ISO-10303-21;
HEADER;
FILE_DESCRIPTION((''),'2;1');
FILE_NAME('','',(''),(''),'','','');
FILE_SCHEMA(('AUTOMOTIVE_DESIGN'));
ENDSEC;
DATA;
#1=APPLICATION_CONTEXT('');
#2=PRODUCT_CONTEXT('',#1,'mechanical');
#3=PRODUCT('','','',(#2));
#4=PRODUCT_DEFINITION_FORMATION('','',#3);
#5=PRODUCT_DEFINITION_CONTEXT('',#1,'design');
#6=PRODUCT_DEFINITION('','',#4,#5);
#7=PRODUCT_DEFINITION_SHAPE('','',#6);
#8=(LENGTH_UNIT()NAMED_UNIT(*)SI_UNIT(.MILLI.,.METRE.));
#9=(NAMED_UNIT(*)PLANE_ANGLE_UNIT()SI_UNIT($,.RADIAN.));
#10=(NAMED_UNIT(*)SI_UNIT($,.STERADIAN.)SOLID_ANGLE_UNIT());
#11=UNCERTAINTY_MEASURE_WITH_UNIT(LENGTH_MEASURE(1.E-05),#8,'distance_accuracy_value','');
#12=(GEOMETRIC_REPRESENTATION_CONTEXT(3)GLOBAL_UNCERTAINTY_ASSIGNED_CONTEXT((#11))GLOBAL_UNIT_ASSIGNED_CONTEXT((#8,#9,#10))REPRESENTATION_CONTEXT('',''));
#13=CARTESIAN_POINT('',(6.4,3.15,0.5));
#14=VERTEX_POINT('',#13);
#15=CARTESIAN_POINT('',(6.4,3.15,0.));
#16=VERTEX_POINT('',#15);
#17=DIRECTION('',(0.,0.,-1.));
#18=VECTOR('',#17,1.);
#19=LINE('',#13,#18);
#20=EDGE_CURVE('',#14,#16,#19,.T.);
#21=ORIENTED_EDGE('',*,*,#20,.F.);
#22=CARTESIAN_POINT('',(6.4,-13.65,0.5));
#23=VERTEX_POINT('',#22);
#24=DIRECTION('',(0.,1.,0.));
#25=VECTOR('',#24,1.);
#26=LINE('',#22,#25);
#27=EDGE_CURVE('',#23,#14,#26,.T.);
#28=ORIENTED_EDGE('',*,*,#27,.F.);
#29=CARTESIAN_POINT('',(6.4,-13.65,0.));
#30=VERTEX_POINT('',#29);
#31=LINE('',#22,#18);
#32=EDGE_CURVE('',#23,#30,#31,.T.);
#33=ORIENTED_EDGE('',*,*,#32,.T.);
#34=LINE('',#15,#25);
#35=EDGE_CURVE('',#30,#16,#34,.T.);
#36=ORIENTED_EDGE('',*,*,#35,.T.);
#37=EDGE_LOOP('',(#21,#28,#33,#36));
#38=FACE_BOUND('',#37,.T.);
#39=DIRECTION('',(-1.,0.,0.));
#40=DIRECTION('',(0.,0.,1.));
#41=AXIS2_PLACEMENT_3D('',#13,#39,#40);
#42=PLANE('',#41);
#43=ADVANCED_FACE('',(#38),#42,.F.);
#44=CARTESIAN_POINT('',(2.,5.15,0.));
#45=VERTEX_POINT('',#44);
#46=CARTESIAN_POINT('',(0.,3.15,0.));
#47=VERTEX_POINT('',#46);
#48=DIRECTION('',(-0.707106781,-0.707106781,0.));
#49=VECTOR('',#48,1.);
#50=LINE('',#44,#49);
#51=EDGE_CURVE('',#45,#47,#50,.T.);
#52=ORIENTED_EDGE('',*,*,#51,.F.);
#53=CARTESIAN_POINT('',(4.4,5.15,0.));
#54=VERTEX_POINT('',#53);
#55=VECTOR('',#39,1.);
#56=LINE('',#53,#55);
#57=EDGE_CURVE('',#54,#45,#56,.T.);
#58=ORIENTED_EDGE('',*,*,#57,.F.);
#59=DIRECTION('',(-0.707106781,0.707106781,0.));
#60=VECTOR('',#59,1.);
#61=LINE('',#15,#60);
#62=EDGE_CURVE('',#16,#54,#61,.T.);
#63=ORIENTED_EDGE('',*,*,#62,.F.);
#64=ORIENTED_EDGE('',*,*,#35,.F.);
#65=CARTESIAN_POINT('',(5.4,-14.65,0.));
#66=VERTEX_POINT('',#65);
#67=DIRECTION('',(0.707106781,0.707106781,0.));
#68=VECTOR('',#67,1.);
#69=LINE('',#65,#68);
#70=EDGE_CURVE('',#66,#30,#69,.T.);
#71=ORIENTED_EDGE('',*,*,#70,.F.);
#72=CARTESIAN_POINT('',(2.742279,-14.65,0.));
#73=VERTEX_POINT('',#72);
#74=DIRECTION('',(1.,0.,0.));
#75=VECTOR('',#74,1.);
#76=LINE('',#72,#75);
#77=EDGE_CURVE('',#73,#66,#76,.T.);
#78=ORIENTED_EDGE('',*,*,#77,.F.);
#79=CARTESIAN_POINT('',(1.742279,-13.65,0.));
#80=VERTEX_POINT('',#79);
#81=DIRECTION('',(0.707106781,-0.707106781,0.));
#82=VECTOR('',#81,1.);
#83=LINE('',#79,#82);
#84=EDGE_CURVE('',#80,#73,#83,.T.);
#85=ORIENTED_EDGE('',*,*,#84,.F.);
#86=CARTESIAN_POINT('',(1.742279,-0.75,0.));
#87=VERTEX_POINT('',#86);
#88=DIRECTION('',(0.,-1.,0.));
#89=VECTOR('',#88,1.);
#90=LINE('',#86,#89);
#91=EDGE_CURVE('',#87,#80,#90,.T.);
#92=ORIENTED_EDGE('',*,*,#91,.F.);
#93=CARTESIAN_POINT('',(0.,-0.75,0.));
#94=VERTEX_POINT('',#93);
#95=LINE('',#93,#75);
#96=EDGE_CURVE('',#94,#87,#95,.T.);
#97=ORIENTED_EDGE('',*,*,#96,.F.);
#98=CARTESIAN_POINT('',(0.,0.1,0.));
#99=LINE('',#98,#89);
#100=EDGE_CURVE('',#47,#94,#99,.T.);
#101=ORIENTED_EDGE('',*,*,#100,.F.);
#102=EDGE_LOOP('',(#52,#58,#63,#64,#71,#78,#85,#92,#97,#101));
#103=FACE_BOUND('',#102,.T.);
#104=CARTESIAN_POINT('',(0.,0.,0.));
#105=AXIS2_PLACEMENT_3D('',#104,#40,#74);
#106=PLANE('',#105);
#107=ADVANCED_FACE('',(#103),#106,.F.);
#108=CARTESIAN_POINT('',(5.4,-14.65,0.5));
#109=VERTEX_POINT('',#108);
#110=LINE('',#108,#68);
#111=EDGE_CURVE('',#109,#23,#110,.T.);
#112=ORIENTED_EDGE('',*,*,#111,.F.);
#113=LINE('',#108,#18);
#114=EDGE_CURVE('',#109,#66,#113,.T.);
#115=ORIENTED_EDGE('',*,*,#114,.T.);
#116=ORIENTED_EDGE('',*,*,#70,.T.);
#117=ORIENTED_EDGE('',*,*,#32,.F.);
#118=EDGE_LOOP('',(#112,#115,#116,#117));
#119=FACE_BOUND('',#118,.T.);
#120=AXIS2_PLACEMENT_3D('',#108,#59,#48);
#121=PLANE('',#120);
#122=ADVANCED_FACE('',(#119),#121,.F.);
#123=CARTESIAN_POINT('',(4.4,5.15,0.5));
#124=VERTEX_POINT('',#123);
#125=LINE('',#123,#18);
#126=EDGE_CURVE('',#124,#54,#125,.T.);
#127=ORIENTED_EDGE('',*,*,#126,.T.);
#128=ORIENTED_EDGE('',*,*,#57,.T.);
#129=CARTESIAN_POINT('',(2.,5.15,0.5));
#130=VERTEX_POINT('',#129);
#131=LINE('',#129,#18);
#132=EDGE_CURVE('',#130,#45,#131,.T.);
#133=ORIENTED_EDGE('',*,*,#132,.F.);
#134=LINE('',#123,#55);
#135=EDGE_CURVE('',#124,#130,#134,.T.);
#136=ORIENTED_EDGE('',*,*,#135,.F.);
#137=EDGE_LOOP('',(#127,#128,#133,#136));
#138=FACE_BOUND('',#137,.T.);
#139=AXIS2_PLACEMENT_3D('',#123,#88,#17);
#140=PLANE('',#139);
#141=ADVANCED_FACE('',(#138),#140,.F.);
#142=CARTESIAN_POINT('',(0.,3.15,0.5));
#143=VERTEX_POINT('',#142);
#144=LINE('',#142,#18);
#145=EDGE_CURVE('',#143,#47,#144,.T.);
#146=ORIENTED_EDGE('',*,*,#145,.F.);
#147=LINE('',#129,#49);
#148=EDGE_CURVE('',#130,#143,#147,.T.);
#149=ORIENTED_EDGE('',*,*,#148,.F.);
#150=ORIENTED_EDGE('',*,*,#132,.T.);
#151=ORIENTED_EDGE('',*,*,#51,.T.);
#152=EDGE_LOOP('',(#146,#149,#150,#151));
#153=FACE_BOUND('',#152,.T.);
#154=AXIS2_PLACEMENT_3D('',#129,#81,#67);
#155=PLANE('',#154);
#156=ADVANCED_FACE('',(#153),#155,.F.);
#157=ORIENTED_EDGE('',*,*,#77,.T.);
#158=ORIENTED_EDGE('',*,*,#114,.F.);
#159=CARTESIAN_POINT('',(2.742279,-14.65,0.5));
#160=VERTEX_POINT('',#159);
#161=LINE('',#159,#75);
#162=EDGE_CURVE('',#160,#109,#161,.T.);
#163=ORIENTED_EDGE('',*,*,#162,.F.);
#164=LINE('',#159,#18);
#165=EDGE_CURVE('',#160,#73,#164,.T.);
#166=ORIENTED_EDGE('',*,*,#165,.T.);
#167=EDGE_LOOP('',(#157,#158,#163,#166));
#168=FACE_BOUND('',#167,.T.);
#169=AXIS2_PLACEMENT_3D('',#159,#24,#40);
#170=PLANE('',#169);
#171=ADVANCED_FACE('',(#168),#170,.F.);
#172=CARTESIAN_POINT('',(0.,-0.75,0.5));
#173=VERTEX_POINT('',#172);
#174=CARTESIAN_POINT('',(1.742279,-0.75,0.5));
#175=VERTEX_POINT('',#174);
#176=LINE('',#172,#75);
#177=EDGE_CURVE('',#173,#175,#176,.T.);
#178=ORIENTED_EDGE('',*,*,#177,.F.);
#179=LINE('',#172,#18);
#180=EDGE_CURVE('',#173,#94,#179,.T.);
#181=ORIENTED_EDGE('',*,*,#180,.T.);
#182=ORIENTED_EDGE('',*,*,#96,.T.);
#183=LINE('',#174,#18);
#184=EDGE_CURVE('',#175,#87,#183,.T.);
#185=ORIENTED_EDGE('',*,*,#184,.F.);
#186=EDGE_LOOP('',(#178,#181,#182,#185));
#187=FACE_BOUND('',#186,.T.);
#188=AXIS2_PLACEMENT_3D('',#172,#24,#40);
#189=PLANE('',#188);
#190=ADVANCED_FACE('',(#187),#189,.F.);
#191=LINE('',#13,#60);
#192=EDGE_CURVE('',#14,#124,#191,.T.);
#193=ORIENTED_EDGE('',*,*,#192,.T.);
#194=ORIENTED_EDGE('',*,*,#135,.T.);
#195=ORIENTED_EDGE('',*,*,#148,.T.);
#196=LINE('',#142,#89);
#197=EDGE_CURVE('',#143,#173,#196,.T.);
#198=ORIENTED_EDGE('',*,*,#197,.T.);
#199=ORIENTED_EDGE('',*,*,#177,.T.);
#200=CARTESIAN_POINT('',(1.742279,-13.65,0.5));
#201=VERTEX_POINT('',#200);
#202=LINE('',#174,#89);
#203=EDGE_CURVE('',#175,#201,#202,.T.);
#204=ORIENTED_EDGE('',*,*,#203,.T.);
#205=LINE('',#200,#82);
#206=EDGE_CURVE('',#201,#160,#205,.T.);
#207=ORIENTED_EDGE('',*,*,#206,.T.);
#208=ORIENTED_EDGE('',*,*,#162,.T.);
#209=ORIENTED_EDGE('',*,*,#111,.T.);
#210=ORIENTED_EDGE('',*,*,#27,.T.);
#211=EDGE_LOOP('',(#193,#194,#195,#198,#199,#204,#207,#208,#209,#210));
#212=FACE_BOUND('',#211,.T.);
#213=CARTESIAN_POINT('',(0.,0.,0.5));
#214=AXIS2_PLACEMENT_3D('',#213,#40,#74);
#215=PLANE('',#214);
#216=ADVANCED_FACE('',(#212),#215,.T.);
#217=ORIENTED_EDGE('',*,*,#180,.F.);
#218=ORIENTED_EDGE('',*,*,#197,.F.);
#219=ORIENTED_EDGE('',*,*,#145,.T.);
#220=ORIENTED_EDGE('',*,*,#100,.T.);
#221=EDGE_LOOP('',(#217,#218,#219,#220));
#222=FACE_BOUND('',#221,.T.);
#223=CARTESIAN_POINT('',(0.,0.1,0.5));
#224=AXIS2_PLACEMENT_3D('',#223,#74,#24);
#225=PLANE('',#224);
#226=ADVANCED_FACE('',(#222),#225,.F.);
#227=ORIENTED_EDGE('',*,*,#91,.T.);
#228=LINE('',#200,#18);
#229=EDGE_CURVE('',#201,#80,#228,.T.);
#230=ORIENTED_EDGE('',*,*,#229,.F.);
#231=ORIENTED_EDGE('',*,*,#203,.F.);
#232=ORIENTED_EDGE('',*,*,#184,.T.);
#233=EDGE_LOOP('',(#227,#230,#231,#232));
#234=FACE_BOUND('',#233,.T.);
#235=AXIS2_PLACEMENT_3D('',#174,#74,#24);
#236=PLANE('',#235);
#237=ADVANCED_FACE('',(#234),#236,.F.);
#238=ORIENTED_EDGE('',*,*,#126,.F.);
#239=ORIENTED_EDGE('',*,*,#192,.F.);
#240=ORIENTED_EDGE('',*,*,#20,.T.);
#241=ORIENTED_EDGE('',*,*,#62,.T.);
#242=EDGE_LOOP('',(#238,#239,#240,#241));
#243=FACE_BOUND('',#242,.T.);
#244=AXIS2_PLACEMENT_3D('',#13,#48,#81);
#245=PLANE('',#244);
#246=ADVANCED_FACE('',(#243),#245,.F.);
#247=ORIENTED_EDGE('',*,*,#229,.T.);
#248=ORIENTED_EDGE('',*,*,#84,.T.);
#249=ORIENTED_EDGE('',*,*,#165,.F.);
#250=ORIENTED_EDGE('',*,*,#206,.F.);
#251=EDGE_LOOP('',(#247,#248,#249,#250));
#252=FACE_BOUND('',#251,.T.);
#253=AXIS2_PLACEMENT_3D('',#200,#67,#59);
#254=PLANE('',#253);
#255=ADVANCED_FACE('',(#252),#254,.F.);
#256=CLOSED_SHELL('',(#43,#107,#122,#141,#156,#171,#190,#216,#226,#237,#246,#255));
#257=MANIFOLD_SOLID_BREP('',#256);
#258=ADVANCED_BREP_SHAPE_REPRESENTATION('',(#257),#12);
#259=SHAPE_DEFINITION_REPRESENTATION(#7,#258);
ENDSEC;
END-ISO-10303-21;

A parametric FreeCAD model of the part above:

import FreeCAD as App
import Part
import Sketcher
from FreeCAD import Vector
Q = App.Units.Quantity


def add_polygon(sketch, points):
    """Adds a closed chain of lines whose ends are joined by coincident constraints."""
    first, n = sketch.GeometryCount, len(points)
    for a, b in zip(points, points[1:] + points[:1]):
        sketch.addGeometry(Part.LineSegment(App.Vector(*a, 0), App.Vector(*b, 0)), False)
    for i in range(n):
        sketch.addConstraint(Sketcher.Constraint("Coincident", first + i, 2, first + (i + 1) % n, 1))

doc = App.newDocument("Part")
body = doc.addObject("PartDesign::Body", "Body")

# Sketch on XY plane
sketch1 = doc.addObject("Sketcher::SketchObject", "Sketch")
body.addObject(sketch1)
sketch1.AttachmentSupport = (doc.XY_Plane, [""])
sketch1.MapMode = "FlatFace"
add_polygon(sketch1, [(1.742279, -13.65), (2.742279, -14.65), (5.4, -14.65), (6.4, -13.65), (6.4, 3.15), (4.4, 5.15), (2, 5.15), (0, 3.15), (0, -0.75), (1.742279, -0.75)])  # lines 0-9
sketch1.addConstraint(Sketcher.Constraint("Horizontal", 1))
sketch1.addConstraint(Sketcher.Constraint("Vertical", 3))
sketch1.addConstraint(Sketcher.Constraint("Horizontal", 5))
sketch1.addConstraint(Sketcher.Constraint("Vertical", 7))
sketch1.addConstraint(Sketcher.Constraint("Horizontal", 8))
sketch1.addConstraint(Sketcher.Constraint("Vertical", 9))
sketch1.addConstraint(Sketcher.Constraint("PointOnObject", 6, 2, -2))
sketch1.addConstraint(Sketcher.Constraint("Perpendicular", 0, 2))
sketch1.addConstraint(Sketcher.Constraint("Perpendicular", 2, 4))
sketch1.addConstraint(Sketcher.Constraint("Perpendicular", 4, 6))
sketch1.addConstraint(Sketcher.Constraint("Horizontal", 3, 2, 6, 2))
sketch1.addConstraint(Sketcher.Constraint("Horizontal", 2, 2, 9, 2))
sketch1.addConstraint(Sketcher.Constraint("Equal", 0, 2))
sketch1.addConstraint(Sketcher.Constraint("DistanceX", 5, 2, 5, 1, Q("2.4 mm")))
sketch1.addConstraint(Sketcher.Constraint("DistanceY", 3, 1, 3, 2, Q("16.8 mm")))
sketch1.addConstraint(Sketcher.Constraint("DistanceY", 7, 2, 7, 1, Q("3.9 mm")))
sketch1.addConstraint(Sketcher.Constraint("DistanceX", -1, 1, 5, 2, Q("2 mm")))
sketch1.addConstraint(Sketcher.Constraint("DistanceX", 1, 2, 2, 2, Q("1 mm")))
sketch1.addConstraint(Sketcher.Constraint("DistanceY", 0, 2, -1, 1, Q("14.65 mm")))
sketch1.addConstraint(Sketcher.Constraint("DistanceX", 1, 1, 1, 2, Q("2.657721 mm")))
pad1 = doc.addObject("PartDesign::Pad", "Pad")
body.addObject(pad1)
pad1.Profile = sketch1
pad1.Length = 0.5

doc.recompute()
